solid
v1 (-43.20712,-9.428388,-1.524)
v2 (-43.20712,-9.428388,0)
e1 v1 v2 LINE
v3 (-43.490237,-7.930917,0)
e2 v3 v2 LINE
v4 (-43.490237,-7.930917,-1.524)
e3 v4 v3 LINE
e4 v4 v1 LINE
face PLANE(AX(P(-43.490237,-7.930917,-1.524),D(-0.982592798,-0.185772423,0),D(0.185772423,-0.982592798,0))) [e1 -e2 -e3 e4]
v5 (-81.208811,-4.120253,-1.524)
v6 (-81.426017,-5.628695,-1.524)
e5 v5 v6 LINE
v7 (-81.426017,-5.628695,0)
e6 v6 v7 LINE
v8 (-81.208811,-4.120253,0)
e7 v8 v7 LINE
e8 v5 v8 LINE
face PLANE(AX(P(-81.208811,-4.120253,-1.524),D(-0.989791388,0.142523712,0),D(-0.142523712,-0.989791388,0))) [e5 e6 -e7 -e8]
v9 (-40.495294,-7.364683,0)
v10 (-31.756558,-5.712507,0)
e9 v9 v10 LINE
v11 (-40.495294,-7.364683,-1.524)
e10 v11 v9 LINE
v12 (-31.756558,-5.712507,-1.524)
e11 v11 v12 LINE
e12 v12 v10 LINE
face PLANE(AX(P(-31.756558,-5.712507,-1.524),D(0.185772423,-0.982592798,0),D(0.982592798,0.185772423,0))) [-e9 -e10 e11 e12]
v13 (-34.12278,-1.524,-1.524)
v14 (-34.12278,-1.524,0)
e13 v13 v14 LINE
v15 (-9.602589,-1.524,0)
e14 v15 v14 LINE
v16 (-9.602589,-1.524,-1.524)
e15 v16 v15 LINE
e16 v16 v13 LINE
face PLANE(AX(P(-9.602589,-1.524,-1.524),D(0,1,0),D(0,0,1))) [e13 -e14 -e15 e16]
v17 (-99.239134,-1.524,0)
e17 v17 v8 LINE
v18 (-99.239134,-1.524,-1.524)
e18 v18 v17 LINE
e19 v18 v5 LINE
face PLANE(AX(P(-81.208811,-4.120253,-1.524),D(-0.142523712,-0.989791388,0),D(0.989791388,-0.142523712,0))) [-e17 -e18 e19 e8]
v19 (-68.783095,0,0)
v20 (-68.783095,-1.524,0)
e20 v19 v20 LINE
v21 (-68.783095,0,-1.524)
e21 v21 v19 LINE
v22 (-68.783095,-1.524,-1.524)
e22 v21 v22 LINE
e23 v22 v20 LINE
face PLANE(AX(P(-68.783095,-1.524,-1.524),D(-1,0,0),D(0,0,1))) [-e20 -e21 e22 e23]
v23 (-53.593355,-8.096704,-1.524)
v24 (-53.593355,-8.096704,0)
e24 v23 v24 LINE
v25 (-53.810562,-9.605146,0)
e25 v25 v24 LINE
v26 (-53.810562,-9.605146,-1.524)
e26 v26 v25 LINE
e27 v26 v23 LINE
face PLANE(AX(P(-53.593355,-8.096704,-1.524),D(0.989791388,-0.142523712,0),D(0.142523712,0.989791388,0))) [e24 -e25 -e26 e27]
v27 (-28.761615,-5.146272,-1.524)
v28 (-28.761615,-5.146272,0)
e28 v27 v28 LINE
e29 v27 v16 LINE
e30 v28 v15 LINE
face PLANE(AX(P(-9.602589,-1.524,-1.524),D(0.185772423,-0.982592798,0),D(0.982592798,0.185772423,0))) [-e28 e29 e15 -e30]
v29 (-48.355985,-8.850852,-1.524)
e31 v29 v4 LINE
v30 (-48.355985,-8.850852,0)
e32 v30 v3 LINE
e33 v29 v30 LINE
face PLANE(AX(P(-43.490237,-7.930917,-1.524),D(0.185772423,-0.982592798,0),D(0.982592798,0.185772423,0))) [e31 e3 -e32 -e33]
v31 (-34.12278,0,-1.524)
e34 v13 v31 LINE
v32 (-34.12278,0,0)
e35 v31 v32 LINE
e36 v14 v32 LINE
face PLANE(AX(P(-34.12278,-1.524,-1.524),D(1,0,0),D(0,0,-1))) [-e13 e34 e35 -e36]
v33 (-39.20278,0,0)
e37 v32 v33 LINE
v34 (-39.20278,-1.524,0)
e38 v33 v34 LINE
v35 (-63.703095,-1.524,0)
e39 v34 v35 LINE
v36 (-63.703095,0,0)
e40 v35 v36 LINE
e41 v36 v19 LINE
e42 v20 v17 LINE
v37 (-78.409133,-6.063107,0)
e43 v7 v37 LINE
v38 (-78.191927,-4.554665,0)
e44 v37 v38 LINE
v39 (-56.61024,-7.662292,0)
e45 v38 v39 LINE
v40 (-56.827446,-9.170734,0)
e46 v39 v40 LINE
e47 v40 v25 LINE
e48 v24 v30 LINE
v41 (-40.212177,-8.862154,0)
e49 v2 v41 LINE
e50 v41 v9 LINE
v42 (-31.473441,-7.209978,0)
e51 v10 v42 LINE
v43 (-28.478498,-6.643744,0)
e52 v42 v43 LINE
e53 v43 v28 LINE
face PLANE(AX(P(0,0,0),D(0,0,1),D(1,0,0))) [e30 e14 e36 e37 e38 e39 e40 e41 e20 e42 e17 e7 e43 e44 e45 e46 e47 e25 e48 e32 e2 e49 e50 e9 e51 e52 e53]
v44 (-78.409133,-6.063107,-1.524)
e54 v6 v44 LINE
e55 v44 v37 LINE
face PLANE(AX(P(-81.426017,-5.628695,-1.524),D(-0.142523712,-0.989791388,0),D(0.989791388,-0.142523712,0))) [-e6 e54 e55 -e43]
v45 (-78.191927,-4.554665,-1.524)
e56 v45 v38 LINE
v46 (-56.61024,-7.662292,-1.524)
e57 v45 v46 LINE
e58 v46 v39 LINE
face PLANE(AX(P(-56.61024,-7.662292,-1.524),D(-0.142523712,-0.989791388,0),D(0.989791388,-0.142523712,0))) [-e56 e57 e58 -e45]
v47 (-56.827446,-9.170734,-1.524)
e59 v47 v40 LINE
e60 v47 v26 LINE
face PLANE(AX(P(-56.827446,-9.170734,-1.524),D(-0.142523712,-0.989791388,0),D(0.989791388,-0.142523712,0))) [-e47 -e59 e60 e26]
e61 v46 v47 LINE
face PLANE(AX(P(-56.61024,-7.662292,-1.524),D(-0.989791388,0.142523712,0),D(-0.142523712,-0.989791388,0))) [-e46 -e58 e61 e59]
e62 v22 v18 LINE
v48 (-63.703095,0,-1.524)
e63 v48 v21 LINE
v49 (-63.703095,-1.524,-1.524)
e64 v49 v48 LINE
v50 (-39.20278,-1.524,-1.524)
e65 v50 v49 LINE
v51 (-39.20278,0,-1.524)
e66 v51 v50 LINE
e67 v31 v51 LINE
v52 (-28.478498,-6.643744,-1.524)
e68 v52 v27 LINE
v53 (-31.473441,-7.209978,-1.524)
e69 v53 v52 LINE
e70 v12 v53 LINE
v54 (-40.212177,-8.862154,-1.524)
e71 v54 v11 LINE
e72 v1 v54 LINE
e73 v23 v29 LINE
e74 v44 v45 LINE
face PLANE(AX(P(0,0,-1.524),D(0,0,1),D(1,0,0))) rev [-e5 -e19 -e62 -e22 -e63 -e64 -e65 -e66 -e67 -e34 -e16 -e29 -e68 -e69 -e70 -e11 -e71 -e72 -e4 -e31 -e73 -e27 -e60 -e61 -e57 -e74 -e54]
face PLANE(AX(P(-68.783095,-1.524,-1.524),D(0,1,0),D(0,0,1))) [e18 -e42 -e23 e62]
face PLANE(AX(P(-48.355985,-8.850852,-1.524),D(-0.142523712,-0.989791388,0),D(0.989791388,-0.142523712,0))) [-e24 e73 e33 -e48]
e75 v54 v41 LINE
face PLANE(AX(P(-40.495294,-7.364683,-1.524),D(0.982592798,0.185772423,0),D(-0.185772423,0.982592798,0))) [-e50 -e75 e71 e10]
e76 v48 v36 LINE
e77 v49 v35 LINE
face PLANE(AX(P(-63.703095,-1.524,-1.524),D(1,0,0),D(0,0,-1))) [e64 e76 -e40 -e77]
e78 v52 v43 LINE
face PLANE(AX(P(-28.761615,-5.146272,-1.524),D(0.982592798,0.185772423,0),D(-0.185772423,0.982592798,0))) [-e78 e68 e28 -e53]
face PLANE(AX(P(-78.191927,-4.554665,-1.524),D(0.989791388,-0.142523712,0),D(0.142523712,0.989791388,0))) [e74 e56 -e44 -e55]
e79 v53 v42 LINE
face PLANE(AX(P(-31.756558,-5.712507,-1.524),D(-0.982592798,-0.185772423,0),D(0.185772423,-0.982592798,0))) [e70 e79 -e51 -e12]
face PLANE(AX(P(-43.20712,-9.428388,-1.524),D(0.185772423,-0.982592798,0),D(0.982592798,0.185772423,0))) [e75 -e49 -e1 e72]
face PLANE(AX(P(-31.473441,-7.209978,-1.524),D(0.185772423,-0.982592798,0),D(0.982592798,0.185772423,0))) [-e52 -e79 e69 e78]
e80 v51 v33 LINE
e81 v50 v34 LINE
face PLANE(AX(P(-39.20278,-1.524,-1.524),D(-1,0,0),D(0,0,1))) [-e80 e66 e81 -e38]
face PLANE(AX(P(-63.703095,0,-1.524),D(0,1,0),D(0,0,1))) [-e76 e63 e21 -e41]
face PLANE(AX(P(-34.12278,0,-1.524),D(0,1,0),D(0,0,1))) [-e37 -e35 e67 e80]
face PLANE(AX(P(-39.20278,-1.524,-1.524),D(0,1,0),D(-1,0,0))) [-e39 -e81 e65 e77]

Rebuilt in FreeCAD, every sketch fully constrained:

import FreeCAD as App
import Part
import Sketcher

V = App.Vector
Q = App.Units.Quantity

doc = App.newDocument("Part")
params = doc.addObject("Spreadsheet::Sheet", "Params")
for row, (alias, value) in enumerate([
    ("sketch1_width", "0.2 in"),
    ("sketch1_width2", "0.2 in"),
    ("sketch1_height", "0.06 in"),
    ("sketch1_height2", "0.06 in"),
    ("sketch1_height3", "0.06 in"),
    ("pad1_length", "0.06 in"),
], start=1):
    params.set(f"A{row}", alias)
    params.set(f"B{row}", "=" + value)
    params.setAlias(f"B{row}", alias)

body = doc.addObject("PartDesign::Body", "Body")

# Sketch on XY plane
sketch1 = body.newObject("Sketcher::SketchObject", "Sketch")
sketch1.AttachmentSupport = (doc.getObject("XY_Plane"), [""])
sketch1.MapMode = "FlatFace"
sketch1.addGeometry([
    Part.LineSegment(V(-28.761615, -5.146272, 0), V(-9.602589, -1.524, 0)),  # 0
    Part.LineSegment(V(-9.602589, -1.524, 0), V(-34.12278, -1.524, 0)),  # 1
    Part.LineSegment(V(-34.12278, -1.524, 0), V(-34.12278, 0, 0)),  # 2
    Part.LineSegment(V(-34.12278, 0, 0), V(-39.20278, 0, 0)),  # 3
    Part.LineSegment(V(-39.20278, 0, 0), V(-39.20278, -1.524, 0)),  # 4
    Part.LineSegment(V(-39.20278, -1.524, 0), V(-63.703095, -1.524, 0)),  # 5
    Part.LineSegment(V(-63.703095, -1.524, 0), V(-63.703095, 0, 0)),  # 6
    Part.LineSegment(V(-63.703095, 0, 0), V(-68.783095, 0, 0)),  # 7
    Part.LineSegment(V(-68.783095, 0, 0), V(-68.783095, -1.524, 0)),  # 8
    Part.LineSegment(V(-68.783095, -1.524, 0), V(-99.239134, -1.524, 0)),  # 9
    Part.LineSegment(V(-99.239134, -1.524, 0), V(-81.208811, -4.120253, 0)),  # 10
    Part.LineSegment(V(-81.208811, -4.120253, 0), V(-81.426017, -5.628695, 0)),  # 11
    Part.LineSegment(V(-81.426017, -5.628695, 0), V(-78.409133, -6.063107, 0)),  # 12
    Part.LineSegment(V(-78.409133, -6.063107, 0), V(-78.191927, -4.554665, 0)),  # 13
    Part.LineSegment(V(-78.191927, -4.554665, 0), V(-56.61024, -7.662292, 0)),  # 14
    Part.LineSegment(V(-56.61024, -7.662292, 0), V(-56.827446, -9.170734, 0)),  # 15
    Part.LineSegment(V(-56.827446, -9.170734, 0), V(-53.810562, -9.605146, 0)),  # 16
    Part.LineSegment(V(-53.810562, -9.605146, 0), V(-53.593355, -8.096704, 0)),  # 17
    Part.LineSegment(V(-53.593355, -8.096704, 0), V(-48.355985, -8.850852, 0)),  # 18
    Part.LineSegment(V(-48.355985, -8.850852, 0), V(-43.490237, -7.930917, 0)),  # 19
    Part.LineSegment(V(-43.490237, -7.930917, 0), V(-43.20712, -9.428388, 0)),  # 20
    Part.LineSegment(V(-43.20712, -9.428388, 0), V(-40.212177, -8.862154, 0)),  # 21
    Part.LineSegment(V(-40.212177, -8.862154, 0), V(-40.495294, -7.364683, 0)),  # 22
    Part.LineSegment(V(-40.495294, -7.364683, 0), V(-31.756558, -5.712507, 0)),  # 23
    Part.LineSegment(V(-31.756558, -5.712507, 0), V(-31.473441, -7.209978, 0)),  # 24
    Part.LineSegment(V(-31.473441, -7.209978, 0), V(-28.478498, -6.643744, 0)),  # 25
    Part.LineSegment(V(-28.478498, -6.643744, 0), V(-28.761615, -5.146272, 0)),  # 26
], False)
sketch1.addConstraint([
    Sketcher.Constraint("Coincident", 0, 2, 1, 1),
    Sketcher.Constraint("Coincident", 1, 2, 2, 1),
    Sketcher.Constraint("Coincident", 2, 2, 3, 1),
    Sketcher.Constraint("Coincident", 3, 2, 4, 1),
    Sketcher.Constraint("Coincident", 4, 2, 5, 1),
    Sketcher.Constraint("Coincident", 5, 2, 6, 1),
    Sketcher.Constraint("Coincident", 6, 2, 7, 1),
    Sketcher.Constraint("Coincident", 7, 2, 8, 1),
    Sketcher.Constraint("Coincident", 8, 2, 9, 1),
    Sketcher.Constraint("Coincident", 9, 2, 10, 1),
    Sketcher.Constraint("Coincident", 10, 2, 11, 1),
    Sketcher.Constraint("Coincident", 11, 2, 12, 1),
    Sketcher.Constraint("Coincident", 12, 2, 13, 1),
    Sketcher.Constraint("Coincident", 13, 2, 14, 1),
    Sketcher.Constraint("Coincident", 14, 2, 15, 1),
    Sketcher.Constraint("Coincident", 15, 2, 16, 1),
    Sketcher.Constraint("Coincident", 16, 2, 17, 1),
    Sketcher.Constraint("Coincident", 17, 2, 18, 1),
    Sketcher.Constraint("Coincident", 18, 2, 19, 1),
    Sketcher.Constraint("Coincident", 19, 2, 20, 1),
    Sketcher.Constraint("Coincident", 20, 2, 21, 1),
    Sketcher.Constraint("Coincident", 21, 2, 22, 1),
    Sketcher.Constraint("Coincident", 22, 2, 23, 1),
    Sketcher.Constraint("Coincident", 23, 2, 24, 1),
    Sketcher.Constraint("Coincident", 24, 2, 25, 1),
    Sketcher.Constraint("Coincident", 25, 2, 26, 1),
    Sketcher.Constraint("Coincident", 26, 2, 0, 1),
    Sketcher.Constraint("Horizontal", 1),
    Sketcher.Constraint("Vertical", 2),
    Sketcher.Constraint("Horizontal", 3),
    Sketcher.Constraint("Vertical", 4),
    Sketcher.Constraint("Horizontal", 5),
    Sketcher.Constraint("Vertical", 6),
    Sketcher.Constraint("Horizontal", 7),
    Sketcher.Constraint("Vertical", 8),
    Sketcher.Constraint("Horizontal", 9),
    Sketcher.Constraint("PointOnObject", 2, 2, -1),
    Sketcher.Constraint("PointOnObject", 6, 2, -1),
    Sketcher.Constraint("DistanceX", 3, 2, 3, 1, Q("0.2 in")),
    Sketcher.Constraint("DistanceX", 7, 2, 7, 1, Q("0.2 in")),
    Sketcher.Constraint("DistanceY", 2, 1, 2, 2, Q("0.06 in")),
    Sketcher.Constraint("DistanceY", 4, 2, 4, 1, Q("0.06 in")),
    Sketcher.Constraint("DistanceY", 8, 2, 8, 1, Q("0.06 in")),
    Sketcher.Constraint("Distance", 11, Q("0.06 in")),
    Sketcher.Constraint("Distance", 12, Q("0.12 in")),
    Sketcher.Constraint("Distance", 13, Q("0.06 in")),
    Sketcher.Constraint("Distance", 15, Q("0.06 in")),
    Sketcher.Constraint("Distance", 16, Q("0.12 in")),
    Sketcher.Constraint("Distance", 17, Q("0.06 in")),
    Sketcher.Constraint("Distance", 20, Q("0.06 in")),
    Sketcher.Constraint("Distance", 21, Q("0.12 in")),
    Sketcher.Constraint("Distance", 22, Q("0.06 in")),
    Sketcher.Constraint("Distance", 24, Q("0.06 in")),
    Sketcher.Constraint("Distance", 25, Q("0.12 in")),
    Sketcher.Constraint("Distance", 26, Q("0.06 in")),
    Sketcher.Constraint("DistanceX", 1, 2, 1, 1, Q("24.520191 mm")),
    Sketcher.Constraint("DistanceX", 9, 2, 9, 1, Q("30.45604 mm")),
    Sketcher.Constraint("DistanceX", 25, 2, -1, 1, Q("28.478498 mm")),
    Sketcher.Constraint("DistanceY", 21, 2, 18, 2, Q("0.011302 mm")),
    Sketcher.Constraint("Distance", 0, Q("19.498439 mm")),
    Sketcher.Constraint("Distance", 14, Q("21.804279 mm")),
    Sketcher.Constraint("DistanceX", 5, 2, 5, 1, Q("24.500314 mm")),
    Sketcher.Constraint("DistanceX", 0, 2, -1, 1, Q("9.602589 mm")),
    Sketcher.Constraint("DistanceX", 10, 2, -1, 1, Q("81.208811 mm")),
    Sketcher.Constraint("DistanceX", 14, 2, -1, 1, Q("56.61024 mm")),
    Sketcher.Constraint("DistanceY", 14, 2, -1, 1, Q("7.662292 mm")),
    Sketcher.Constraint("DistanceX", 16, 2, -1, 1, Q("53.810562 mm")),
    Sketcher.Constraint("DistanceX", 20, 2, -1, 1, Q("43.20712 mm")),
    Sketcher.Constraint("DistanceY", 20, 2, -1, 1, Q("9.428388 mm")),
    Sketcher.Constraint("DistanceX", 23, 2, -1, 1, Q("31.756558 mm")),
    Sketcher.Constraint("DistanceX", 24, 2, -1, 1, Q("31.473441 mm")),
    Sketcher.Constraint("DistanceY", 24, 2, -1, 1, Q("7.209978 mm")),
    Sketcher.Constraint("DistanceX", 10, 2, 12, 2, Q("2.799678 mm")),
    Sketcher.Constraint("DistanceX", 11, 2, 13, 2, Q("3.23409 mm")),
    Sketcher.Constraint("DistanceY", 11, 2, 13, 2, Q("1.07403 mm")),
    Sketcher.Constraint("DistanceX", 5, 2, 15, 2, Q("6.875649 mm")),
    Sketcher.Constraint("DistanceX", 15, 2, 17, 2, Q("3.23409 mm")),
    Sketcher.Constraint("DistanceX", 17, 2, 18, 2, Q("5.23737 mm")),
    Sketcher.Constraint("DistanceY", 18, 2, 17, 2, Q("0.754148 mm")),
    Sketcher.Constraint("DistanceX", 18, 2, 19, 2, Q("4.865748 mm")),
    Sketcher.Constraint("DistanceY", 21, 2, 22, 2, Q("1.497471 mm")),
])
sketch1.setExpression("Constraints[38]", "Params.sketch1_width")
sketch1.setExpression("Constraints[39]", "Params.sketch1_width2")
sketch1.setExpression("Constraints[40]", "Params.sketch1_height")
sketch1.setExpression("Constraints[41]", "Params.sketch1_height2")
sketch1.setExpression("Constraints[42]", "Params.sketch1_height3")
pad1 = body.newObject("PartDesign::Pad", "Pad")
pad1.Profile = sketch1
pad1.setExpression("Length", "Params.pad1_length")
pad1.Reversed = True

doc.recompute()
